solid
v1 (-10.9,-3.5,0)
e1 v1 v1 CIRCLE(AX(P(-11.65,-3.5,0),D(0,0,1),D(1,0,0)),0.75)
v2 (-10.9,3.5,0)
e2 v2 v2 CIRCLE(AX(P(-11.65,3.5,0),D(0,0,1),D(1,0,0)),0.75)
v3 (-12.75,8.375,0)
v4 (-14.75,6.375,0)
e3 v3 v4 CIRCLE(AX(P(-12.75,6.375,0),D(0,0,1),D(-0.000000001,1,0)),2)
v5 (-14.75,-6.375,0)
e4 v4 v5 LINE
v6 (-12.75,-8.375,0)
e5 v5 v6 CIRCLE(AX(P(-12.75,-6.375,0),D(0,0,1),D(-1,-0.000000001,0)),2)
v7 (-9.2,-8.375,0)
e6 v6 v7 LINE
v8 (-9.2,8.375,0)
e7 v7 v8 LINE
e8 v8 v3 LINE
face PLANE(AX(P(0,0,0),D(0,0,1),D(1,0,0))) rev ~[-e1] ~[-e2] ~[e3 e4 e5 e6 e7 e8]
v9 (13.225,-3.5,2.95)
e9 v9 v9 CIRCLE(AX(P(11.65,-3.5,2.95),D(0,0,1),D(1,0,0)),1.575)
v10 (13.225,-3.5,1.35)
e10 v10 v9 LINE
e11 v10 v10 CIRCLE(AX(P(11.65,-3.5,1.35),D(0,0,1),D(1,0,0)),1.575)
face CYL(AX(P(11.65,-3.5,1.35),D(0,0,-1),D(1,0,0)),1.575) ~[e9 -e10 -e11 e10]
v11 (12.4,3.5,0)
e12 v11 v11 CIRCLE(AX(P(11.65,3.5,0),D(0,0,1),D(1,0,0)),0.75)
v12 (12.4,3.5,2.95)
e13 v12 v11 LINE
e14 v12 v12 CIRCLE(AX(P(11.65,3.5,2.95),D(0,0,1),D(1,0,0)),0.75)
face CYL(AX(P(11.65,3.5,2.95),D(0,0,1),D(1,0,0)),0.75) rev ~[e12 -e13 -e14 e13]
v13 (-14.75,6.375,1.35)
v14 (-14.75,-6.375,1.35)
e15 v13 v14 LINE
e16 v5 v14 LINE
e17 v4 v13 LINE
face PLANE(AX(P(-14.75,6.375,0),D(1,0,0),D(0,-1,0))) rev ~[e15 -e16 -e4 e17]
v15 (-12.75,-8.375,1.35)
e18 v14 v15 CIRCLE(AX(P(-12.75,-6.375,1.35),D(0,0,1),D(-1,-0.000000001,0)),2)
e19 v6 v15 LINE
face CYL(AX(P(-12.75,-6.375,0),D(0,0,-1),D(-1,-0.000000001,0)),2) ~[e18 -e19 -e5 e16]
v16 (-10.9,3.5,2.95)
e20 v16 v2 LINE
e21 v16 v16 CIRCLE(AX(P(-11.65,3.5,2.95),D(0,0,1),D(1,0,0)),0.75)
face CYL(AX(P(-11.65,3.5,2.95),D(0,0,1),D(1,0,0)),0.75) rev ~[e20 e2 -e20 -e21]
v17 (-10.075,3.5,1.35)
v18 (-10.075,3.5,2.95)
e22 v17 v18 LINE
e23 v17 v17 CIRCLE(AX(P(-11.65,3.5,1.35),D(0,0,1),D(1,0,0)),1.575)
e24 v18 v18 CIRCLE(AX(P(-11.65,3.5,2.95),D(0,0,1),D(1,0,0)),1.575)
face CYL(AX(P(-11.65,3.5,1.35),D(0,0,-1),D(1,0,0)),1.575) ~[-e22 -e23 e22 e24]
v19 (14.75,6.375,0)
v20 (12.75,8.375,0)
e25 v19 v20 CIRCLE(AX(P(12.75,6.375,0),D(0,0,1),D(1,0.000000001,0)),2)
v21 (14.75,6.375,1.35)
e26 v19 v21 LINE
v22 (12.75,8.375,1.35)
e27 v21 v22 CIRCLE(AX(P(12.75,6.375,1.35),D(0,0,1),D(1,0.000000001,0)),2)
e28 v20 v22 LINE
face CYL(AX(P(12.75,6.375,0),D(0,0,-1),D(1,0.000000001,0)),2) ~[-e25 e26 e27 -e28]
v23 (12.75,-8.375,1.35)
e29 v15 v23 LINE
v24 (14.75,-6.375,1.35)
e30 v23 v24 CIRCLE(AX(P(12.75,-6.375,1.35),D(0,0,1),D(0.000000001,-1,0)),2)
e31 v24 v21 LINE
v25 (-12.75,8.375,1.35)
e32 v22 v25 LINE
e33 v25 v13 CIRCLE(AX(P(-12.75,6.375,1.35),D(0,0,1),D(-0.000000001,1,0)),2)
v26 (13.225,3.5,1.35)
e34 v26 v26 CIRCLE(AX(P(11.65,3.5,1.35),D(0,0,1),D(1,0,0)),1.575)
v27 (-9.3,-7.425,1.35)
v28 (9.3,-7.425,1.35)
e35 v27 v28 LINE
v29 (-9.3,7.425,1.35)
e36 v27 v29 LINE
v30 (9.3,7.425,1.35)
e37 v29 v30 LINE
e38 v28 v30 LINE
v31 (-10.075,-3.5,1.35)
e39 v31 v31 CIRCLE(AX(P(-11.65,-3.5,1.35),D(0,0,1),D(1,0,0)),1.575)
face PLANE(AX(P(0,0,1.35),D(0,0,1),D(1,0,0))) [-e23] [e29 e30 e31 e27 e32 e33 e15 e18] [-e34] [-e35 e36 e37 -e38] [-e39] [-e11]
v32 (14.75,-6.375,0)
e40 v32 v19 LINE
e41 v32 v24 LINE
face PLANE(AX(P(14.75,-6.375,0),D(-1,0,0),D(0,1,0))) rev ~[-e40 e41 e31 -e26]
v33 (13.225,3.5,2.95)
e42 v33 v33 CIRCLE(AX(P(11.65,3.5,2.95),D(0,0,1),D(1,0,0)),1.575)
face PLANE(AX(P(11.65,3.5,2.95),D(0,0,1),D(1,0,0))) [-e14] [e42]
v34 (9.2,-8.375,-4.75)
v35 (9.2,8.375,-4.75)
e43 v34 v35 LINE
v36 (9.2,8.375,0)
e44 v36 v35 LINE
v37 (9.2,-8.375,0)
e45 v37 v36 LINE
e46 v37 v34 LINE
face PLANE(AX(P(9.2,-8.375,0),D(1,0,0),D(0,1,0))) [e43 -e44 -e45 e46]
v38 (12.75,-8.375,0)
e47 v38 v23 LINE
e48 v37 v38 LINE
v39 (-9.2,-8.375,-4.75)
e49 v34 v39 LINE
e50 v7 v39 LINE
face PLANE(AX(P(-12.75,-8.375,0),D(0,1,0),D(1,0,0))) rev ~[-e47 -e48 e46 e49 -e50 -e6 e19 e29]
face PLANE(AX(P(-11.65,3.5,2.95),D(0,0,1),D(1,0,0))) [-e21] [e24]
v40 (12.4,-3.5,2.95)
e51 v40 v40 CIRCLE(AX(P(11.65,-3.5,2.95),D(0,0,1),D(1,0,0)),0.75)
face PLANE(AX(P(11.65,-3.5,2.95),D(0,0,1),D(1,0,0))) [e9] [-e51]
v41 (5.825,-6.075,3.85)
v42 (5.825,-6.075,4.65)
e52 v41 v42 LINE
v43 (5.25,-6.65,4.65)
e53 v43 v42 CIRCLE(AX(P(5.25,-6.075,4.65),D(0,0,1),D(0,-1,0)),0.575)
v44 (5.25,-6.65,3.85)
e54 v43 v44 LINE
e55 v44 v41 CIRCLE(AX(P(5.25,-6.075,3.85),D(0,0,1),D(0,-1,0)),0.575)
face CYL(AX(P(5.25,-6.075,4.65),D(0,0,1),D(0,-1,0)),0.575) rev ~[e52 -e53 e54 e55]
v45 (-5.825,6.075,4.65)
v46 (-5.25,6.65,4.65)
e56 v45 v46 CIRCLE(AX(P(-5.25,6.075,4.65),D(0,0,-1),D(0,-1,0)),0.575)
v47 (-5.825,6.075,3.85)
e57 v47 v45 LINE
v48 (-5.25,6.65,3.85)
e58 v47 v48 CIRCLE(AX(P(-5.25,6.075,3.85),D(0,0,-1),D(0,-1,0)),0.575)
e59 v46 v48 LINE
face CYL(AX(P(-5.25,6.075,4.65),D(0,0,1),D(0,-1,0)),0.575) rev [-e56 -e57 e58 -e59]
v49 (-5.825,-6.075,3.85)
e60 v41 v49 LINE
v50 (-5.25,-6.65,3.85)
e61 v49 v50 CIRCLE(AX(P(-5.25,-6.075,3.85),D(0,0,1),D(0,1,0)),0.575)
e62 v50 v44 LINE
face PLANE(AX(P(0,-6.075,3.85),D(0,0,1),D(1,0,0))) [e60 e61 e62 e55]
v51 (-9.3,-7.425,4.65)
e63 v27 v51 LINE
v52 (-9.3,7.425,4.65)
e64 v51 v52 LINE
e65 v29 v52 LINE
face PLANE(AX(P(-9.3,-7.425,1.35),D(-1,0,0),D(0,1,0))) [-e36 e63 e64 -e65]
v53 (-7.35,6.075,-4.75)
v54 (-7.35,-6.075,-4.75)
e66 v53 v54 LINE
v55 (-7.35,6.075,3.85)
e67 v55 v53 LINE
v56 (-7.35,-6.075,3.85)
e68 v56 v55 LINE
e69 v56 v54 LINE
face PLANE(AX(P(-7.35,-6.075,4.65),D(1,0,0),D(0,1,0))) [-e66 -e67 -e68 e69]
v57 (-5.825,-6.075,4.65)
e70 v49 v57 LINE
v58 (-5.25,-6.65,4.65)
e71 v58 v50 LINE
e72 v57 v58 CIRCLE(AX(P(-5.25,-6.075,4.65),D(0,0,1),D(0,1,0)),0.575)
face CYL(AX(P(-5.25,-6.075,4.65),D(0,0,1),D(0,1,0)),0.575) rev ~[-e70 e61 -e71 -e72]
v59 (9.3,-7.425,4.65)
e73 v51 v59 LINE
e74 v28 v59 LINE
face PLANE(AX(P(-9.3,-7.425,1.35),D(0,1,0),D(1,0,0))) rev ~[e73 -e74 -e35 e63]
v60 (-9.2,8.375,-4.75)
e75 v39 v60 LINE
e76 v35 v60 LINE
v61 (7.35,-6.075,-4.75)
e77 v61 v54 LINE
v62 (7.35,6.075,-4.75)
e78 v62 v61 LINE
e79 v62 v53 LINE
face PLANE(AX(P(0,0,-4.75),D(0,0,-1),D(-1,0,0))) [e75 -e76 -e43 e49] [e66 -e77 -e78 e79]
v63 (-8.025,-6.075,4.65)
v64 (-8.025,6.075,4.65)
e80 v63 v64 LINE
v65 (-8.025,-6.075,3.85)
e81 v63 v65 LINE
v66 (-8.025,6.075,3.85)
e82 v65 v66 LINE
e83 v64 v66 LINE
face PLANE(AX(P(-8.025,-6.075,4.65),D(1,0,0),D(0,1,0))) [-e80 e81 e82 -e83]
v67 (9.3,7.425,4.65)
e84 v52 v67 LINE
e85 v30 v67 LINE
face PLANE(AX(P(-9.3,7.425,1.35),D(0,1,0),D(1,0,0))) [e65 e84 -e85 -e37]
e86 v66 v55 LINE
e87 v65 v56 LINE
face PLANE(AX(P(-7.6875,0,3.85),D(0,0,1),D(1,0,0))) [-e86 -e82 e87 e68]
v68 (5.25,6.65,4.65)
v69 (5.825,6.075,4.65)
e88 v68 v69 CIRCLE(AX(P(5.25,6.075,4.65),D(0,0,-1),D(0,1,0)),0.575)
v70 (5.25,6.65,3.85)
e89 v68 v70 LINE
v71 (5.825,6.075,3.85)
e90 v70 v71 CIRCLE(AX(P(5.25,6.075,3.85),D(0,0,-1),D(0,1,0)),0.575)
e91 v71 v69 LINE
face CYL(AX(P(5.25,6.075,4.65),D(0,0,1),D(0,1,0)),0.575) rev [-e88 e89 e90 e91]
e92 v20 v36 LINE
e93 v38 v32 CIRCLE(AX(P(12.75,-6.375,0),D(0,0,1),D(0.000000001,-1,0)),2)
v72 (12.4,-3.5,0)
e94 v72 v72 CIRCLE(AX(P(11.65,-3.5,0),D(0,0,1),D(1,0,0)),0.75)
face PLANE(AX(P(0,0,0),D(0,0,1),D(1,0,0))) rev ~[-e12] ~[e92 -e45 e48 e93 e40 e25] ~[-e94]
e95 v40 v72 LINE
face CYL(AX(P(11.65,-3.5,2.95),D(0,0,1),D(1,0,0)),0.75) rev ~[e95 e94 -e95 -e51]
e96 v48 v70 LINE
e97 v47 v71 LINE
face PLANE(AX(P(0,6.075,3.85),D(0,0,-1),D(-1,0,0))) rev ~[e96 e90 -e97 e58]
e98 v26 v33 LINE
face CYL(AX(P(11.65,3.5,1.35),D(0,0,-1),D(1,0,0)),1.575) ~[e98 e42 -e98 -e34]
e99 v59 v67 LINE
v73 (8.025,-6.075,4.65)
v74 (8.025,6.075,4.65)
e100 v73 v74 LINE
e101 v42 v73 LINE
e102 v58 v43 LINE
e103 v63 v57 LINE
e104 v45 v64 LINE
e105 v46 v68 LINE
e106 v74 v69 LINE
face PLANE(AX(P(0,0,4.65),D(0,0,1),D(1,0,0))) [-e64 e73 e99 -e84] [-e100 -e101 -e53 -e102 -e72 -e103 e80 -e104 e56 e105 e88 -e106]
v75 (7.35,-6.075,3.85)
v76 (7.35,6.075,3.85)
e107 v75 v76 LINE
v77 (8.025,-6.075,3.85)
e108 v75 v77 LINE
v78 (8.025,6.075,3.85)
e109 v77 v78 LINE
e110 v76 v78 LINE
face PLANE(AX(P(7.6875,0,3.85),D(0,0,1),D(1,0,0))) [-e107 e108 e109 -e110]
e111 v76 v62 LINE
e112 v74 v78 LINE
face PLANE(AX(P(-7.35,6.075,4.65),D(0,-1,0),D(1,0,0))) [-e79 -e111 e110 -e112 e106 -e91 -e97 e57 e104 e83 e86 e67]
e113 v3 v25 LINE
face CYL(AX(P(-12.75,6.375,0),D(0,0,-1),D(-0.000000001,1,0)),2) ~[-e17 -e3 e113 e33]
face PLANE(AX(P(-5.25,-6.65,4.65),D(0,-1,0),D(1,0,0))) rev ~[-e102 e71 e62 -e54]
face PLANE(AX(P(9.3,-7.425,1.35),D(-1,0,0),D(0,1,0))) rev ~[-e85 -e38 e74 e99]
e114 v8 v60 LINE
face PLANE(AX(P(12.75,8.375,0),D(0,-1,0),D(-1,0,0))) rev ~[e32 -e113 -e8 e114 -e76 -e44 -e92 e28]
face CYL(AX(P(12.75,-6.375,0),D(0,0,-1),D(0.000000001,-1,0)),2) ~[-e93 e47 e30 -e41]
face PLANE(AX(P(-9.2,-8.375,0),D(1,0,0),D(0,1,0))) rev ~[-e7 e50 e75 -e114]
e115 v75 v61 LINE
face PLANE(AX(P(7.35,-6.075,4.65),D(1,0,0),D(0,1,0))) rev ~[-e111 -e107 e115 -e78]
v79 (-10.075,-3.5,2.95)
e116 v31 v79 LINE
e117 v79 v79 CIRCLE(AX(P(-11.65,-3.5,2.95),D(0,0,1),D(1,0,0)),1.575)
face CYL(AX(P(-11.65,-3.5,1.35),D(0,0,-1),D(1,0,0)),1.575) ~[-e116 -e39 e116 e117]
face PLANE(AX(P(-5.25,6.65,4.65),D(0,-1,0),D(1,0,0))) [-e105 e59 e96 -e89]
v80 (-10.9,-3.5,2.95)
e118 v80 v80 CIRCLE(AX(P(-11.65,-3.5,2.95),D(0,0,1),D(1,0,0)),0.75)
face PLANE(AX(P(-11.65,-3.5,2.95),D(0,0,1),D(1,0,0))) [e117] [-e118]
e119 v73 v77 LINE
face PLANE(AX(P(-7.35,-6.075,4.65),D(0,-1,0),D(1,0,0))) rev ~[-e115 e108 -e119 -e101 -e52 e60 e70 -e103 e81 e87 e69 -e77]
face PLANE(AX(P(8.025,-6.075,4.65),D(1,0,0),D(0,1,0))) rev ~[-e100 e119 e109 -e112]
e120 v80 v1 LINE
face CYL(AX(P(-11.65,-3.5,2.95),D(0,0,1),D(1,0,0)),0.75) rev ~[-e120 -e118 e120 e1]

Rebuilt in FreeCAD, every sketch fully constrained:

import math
import FreeCAD as App
import Part
import Sketcher
from FreeCAD import Vector


def add_polygon(sketch, points):
    """Adds a closed chain of lines whose ends are joined by coincident constraints."""
    first, n = sketch.GeometryCount, len(points)
    for a, b in zip(points, points[1:] + points[:1]):
        sketch.addGeometry(Part.LineSegment(App.Vector(*a, 0), App.Vector(*b, 0)), False)
    for i in range(n):
        sketch.addConstraint(Sketcher.Constraint("Coincident", first + i, 2, first + (i + 1) % n, 1))

doc = App.newDocument("Part")
body = doc.addObject("PartDesign::Body", "Body")

# Sketch on XY plane
sketch1 = body.newObject("Sketcher::SketchObject", "Sketch")
sketch1.AttachmentSupport = (doc.getObject("XY_Plane"), [""])
sketch1.MapMode = "FlatFace"
sketch1.addGeometry([
    Part.LineSegment(Vector(-12.8, -8.4, 0), Vector(12.8, -8.4, 0)),  # 0
    Part.ArcOfCircle(Part.Circle(Vector(12.7, -6.4, 0), Vector(0, 0, 1), 2), math.radians(-90), math.radians(0)),  # 1
    Part.LineSegment(Vector(14.8, -6.4, 0), Vector(14.8, 6.4, 0)),  # 2
    Part.ArcOfCircle(Part.Circle(Vector(12.7, 6.4, 0), Vector(0, 0, 1), 2), math.radians(0), math.radians(90)),  # 3
    Part.LineSegment(Vector(12.8, 8.4, 0), Vector(-12.8, 8.4, 0)),  # 4
    Part.ArcOfCircle(Part.Circle(Vector(-12.7, 6.4, 0), Vector(0, 0, 1), 2), math.radians(90), math.radians(180)),  # 5
    Part.LineSegment(Vector(-14.8, 6.4, 0), Vector(-14.8, -6.4, 0)),  # 6
    Part.ArcOfCircle(Part.Circle(Vector(-12.7, -6.4, 0), Vector(0, 0, 1), 2), math.radians(-180), math.radians(-90)),  # 7
], False)
sketch1.addConstraint([
    Sketcher.Constraint("Tangent", 0, 2, 1, 1),
    Sketcher.Constraint("Tangent", 1, 2, 2, 1),
    Sketcher.Constraint("Tangent", 2, 2, 3, 1),
    Sketcher.Constraint("Tangent", 3, 2, 4, 1),
    Sketcher.Constraint("Tangent", 4, 2, 5, 1),
    Sketcher.Constraint("Tangent", 5, 2, 6, 1),
    Sketcher.Constraint("Tangent", 6, 2, 7, 1),
    Sketcher.Constraint("Tangent", 7, 2, 0, 1),
    Sketcher.Constraint("Horizontal", 0),
    Sketcher.Constraint("Vertical", 2),
    Sketcher.Constraint("Horizontal", 4),
    Sketcher.Constraint("Vertical", 6),
    Sketcher.Constraint("Equal", 1, 3),
    Sketcher.Constraint("Equal", 3, 5),
    Sketcher.Constraint("Equal", 5, 7),
    Sketcher.Constraint("Symmetric", 1, 3, 5, 3, -1, 1),
    Sketcher.Constraint("Radius", 1, 2.0),
    Sketcher.Constraint("DistanceX", 0, 1, 0, 2, 25.5),
    Sketcher.Constraint("DistanceY", 2, 1, 2, 2, 12.75),
])
pad1 = body.newObject("PartDesign::Pad", "Pad")
pad1.Profile = sketch1
pad1.Length = 1.35

# Sketch on XY plane
sketch2 = body.newObject("Sketcher::SketchObject", "Sketch001")
sketch2.AttachmentSupport = (doc.getObject("XY_Plane"), [""])
sketch2.MapMode = "FlatFace"
add_polygon(sketch2, [(9, 8), (9, -8), (-9, -8), (-9, 8)])  # lines 0-3
sketch2.addConstraint([
    Sketcher.Constraint("Vertical", 0),
    Sketcher.Constraint("Horizontal", 1),
    Sketcher.Constraint("Vertical", 2),
    Sketcher.Constraint("Horizontal", 3),
    Sketcher.Constraint("Symmetric", 0, 2, 2, 2, -1, 1),
    Sketcher.Constraint("DistanceX", 1, 2, 1, 1, 18.4),
    Sketcher.Constraint("DistanceY", 0, 2, 0, 1, 16.75),
])
pad2 = body.newObject("PartDesign::Pad", "Pad001")
pad2.Profile = sketch2
pad2.Length = 4.75
pad2.Reversed = True

# Sketch on XY plane
sketch3 = body.newObject("Sketcher::SketchObject", "Sketch002")
sketch3.AttachmentSupport = (doc.getObject("XY_Plane"), [""])
sketch3.MapMode = "FlatFace"
sketch3.AttachmentOffset = App.Placement(Vector(0, 0, 1.35), App.Rotation())
sketch3.addGeometry([
    Part.Circle(Vector(-11.7, 3.5, 0), Vector(0, 0, 1), 1.6),
    Part.Circle(Vector(11.7, 3.5, 0), Vector(0, 0, 1), 1.6),
    Part.Circle(Vector(11.7, -3.5, 0), Vector(0, 0, 1), 1.6),
    Part.Circle(Vector(-11.7, -3.5, 0), Vector(0, 0, 1), 1.6),
], False)
sketch3.addConstraint([
    Sketcher.Constraint("Equal", 0, 1),
    Sketcher.Constraint("Equal", 1, 2),
    Sketcher.Constraint("Equal", 2, 3),
    Sketcher.Constraint("Symmetric", 0, 3, 2, 3, -1, 1),
    Sketcher.Constraint("Symmetric", 1, 3, 3, 3, -1, 1),
    Sketcher.Constraint("Symmetric", 0, 3, 1, 3, -2),
    Sketcher.Constraint("Diameter", 0, 3.15),
    Sketcher.Constraint("DistanceY", 2, 3, 1, 3, 7.0),
    Sketcher.Constraint("DistanceX", 0, 3, 1, 3, 23.3),
])
pad3 = body.newObject("PartDesign::Pad", "Pad002")
pad3.Profile = sketch3
pad3.Length = 1.6

# Sketch on XY plane
sketch4 = body.newObject("Sketcher::SketchObject", "Sketch003")
sketch4.AttachmentSupport = (doc.getObject("XY_Plane"), [""])
sketch4.MapMode = "FlatFace"
sketch4.AttachmentOffset = App.Placement(Vector(0, 0, 1.35), App.Rotation())
add_polygon(sketch4, [(-9, 7), (-9, -7), (9, -7), (9, 7)])  # lines 0-3
sketch4.addConstraint([
    Sketcher.Constraint("Vertical", 0),
    Sketcher.Constraint("Horizontal", 1),
    Sketcher.Constraint("Vertical", 2),
    Sketcher.Constraint("Horizontal", 3),
    Sketcher.Constraint("Symmetric", 0, 2, 2, 2, -1, 1),
    Sketcher.Constraint("DistanceX", 1, 1, 1, 2, 18.6),
    Sketcher.Constraint("DistanceY", 0, 2, 0, 1, 14.85),
])
pad4 = body.newObject("PartDesign::Pad", "Pad003")
pad4.Profile = sketch4
pad4.Length = 3.3

# Sketch on XY plane
sketch5 = body.newObject("Sketcher::SketchObject", "Sketch004")
sketch5.AttachmentSupport = (doc.getObject("XY_Plane"), [""])
sketch5.MapMode = "FlatFace"
sketch5.AttachmentOffset = App.Placement(Vector(0, 0, 4.65), App.Rotation())
add_polygon(sketch5, [(-7, 6), (-7, -6), (7, -6), (7, 6)])  # lines 0-3
sketch5.addConstraint([
    Sketcher.Constraint("Vertical", 0),
    Sketcher.Constraint("Horizontal", 1),
    Sketcher.Constraint("Vertical", 2),
    Sketcher.Constraint("Horizontal", 3),
    Sketcher.Constraint("Symmetric", 0, 2, 2, 2, -1, 1),
    Sketcher.Constraint("DistanceX", 1, 1, 1, 2, 14.7),
    Sketcher.Constraint("DistanceY", 0, 2, 0, 1, 12.15),
])
pocket1 = body.newObject("PartDesign::Pocket", "Pocket")
pocket1.Profile = sketch5
pocket1.Type = "ThroughAll"

# Sketch on XY plane
sketch6 = body.newObject("Sketcher::SketchObject", "Sketch005")
sketch6.AttachmentSupport = (doc.getObject("XY_Plane"), [""])
sketch6.MapMode = "FlatFace"
sketch6.AttachmentOffset = App.Placement(Vector(0, 0, 4.65), App.Rotation())
sketch6.addGeometry(Part.LineSegment(Vector(5.2, 6.7, 0), Vector(-5.2, 6.7, 0)), False)  # 0
sketch6.addGeometry(Part.ArcOfCircle(Part.Circle(Vector(-5.2, 6.1, 0), Vector(0, 0, 1), 0.6), math.radians(90), math.radians(270)), False)  # 1
sketch6.addGeometry(Part.LineSegment(Vector(-5.2, 5.5, 0), Vector(5.2, 5.5, 0)), False)  # 2
sketch6.addGeometry(Part.ArcOfCircle(Part.Circle(Vector(5.2, 6.1, 0), Vector(0, 0, 1), 0.6), math.radians(-90), math.radians(90)), False)  # 3
sketch6.addGeometry(Part.LineSegment(Vector(-5.2, -6.7, 0), Vector(5.2, -6.7, 0)), False)  # 4
sketch6.addGeometry(Part.ArcOfCircle(Part.Circle(Vector(5.2, -6.1, 0), Vector(0, 0, 1), 0.6), math.radians(-90), math.radians(90)), False)  # 5
sketch6.addGeometry(Part.LineSegment(Vector(5.2, -5.5, 0), Vector(-5.2, -5.5, 0)), False)  # 6
sketch6.addGeometry(Part.ArcOfCircle(Part.Circle(Vector(-5.2, -6.1, 0), Vector(0, 0, 1), 0.6), math.radians(90), math.radians(270)), False)  # 7
add_polygon(sketch6, [(-8, 6.1), (-8, -6.1), (-7.3, -6.1), (-7.3, 6.1)])  # lines 8-11
add_polygon(sketch6, [(7.3, 6.1), (7.3, -6.1), (8, -6.1), (8, 6.1)])  # lines 12-15
sketch6.addConstraint([
    Sketcher.Constraint("Tangent", 0, 2, 1, 1),
    Sketcher.Constraint("Tangent", 1, 2, 2, 1),
    Sketcher.Constraint("Tangent", 2, 2, 3, 1),
    Sketcher.Constraint("Tangent", 3, 2, 0, 1),
    Sketcher.Constraint("Tangent", 4, 2, 5, 1),
    Sketcher.Constraint("Tangent", 5, 2, 6, 1),
    Sketcher.Constraint("Tangent", 6, 2, 7, 1),
    Sketcher.Constraint("Tangent", 7, 2, 4, 1),
    Sketcher.Constraint("Horizontal", 0),
    Sketcher.Constraint("Horizontal", 2),
    Sketcher.Constraint("Horizontal", 4),
    Sketcher.Constraint("Horizontal", 6),
    Sketcher.Constraint("Vertical", 8),
    Sketcher.Constraint("Horizontal", 9),
    Sketcher.Constraint("Vertical", 10),
    Sketcher.Constraint("Horizontal", 11),
    Sketcher.Constraint("Vertical", 12),
    Sketcher.Constraint("Horizontal", 13),
    Sketcher.Constraint("Vertical", 14),
    Sketcher.Constraint("Horizontal", 15),
    Sketcher.Constraint("Equal", 3, 5),
    Sketcher.Constraint("Symmetric", 1, 3, 5, 3, -1, 1),
    Sketcher.Constraint("Symmetric", 10, 2, 12, 2, -1, 1),
    Sketcher.Constraint("Symmetric", 8, 2, 14, 2, -1, 1),
    Sketcher.Constraint("Horizontal", 7, 3, 8, 2),
    Sketcher.Constraint("Horizontal", 3, 3, 10, 2),
    Sketcher.Constraint("Vertical", 3, 3, 5, 3),
    Sketcher.Constraint("Vertical", 1, 3, 7, 3),
    Sketcher.Constraint("DistanceX", 0, 2, 0, 1, 10.5),
    Sketcher.Constraint("Radius", 1, 0.575),
    Sketcher.Constraint("DistanceY", 5, 2, 2, 2, 11.0),
    Sketcher.Constraint("DistanceX", 9, 2, 7, 3, 2.1),
    Sketcher.Constraint("DistanceX", 9, 1, 9, 2, 0.675),
])
pocket2 = body.newObject("PartDesign::Pocket", "Pocket001")
pocket2.Profile = sketch6
pocket2.Length = 0.8

# Sketch on XY plane
sketch7 = body.newObject("Sketcher::SketchObject", "Sketch006")
sketch7.AttachmentSupport = (doc.getObject("XY_Plane"), [""])
sketch7.MapMode = "FlatFace"
sketch7.AttachmentOffset = App.Placement(Vector(0, 0, 2.95), App.Rotation())
sketch7.addGeometry([
    Part.Circle(Vector(-11.7, 3.5, 0), Vector(0, 0, 1), 0.8),
    Part.Circle(Vector(-11.7, -3.5, 0), Vector(0, 0, 1), 0.8),
    Part.Circle(Vector(11.7, 3.5, 0), Vector(0, 0, 1), 0.8),
    Part.Circle(Vector(11.7, -3.5, 0), Vector(0, 0, 1), 0.8),
], False)
sketch7.addConstraint([
    Sketcher.Constraint("Equal", 0, 1),
    Sketcher.Constraint("Equal", 1, 2),
    Sketcher.Constraint("Equal", 2, 3),
    Sketcher.Constraint("Symmetric", 1, 3, 2, 3, -1, 1),
    Sketcher.Constraint("Symmetric", 0, 3, 3, 3, -1, 1),
    Sketcher.Constraint("Symmetric", 0, 3, 2, 3, -2),
    Sketcher.Constraint("Diameter", 0, 1.5),
    Sketcher.Constraint("DistanceY", 1, 3, 0, 3, 7.0),
    Sketcher.Constraint("DistanceX", 0, 3, 2, 3, 23.3),
])
pocket3 = body.newObject("PartDesign::Pocket", "Pocket002")
pocket3.Profile = sketch7
pocket3.Type = "ThroughAll"

doc.recompute()
